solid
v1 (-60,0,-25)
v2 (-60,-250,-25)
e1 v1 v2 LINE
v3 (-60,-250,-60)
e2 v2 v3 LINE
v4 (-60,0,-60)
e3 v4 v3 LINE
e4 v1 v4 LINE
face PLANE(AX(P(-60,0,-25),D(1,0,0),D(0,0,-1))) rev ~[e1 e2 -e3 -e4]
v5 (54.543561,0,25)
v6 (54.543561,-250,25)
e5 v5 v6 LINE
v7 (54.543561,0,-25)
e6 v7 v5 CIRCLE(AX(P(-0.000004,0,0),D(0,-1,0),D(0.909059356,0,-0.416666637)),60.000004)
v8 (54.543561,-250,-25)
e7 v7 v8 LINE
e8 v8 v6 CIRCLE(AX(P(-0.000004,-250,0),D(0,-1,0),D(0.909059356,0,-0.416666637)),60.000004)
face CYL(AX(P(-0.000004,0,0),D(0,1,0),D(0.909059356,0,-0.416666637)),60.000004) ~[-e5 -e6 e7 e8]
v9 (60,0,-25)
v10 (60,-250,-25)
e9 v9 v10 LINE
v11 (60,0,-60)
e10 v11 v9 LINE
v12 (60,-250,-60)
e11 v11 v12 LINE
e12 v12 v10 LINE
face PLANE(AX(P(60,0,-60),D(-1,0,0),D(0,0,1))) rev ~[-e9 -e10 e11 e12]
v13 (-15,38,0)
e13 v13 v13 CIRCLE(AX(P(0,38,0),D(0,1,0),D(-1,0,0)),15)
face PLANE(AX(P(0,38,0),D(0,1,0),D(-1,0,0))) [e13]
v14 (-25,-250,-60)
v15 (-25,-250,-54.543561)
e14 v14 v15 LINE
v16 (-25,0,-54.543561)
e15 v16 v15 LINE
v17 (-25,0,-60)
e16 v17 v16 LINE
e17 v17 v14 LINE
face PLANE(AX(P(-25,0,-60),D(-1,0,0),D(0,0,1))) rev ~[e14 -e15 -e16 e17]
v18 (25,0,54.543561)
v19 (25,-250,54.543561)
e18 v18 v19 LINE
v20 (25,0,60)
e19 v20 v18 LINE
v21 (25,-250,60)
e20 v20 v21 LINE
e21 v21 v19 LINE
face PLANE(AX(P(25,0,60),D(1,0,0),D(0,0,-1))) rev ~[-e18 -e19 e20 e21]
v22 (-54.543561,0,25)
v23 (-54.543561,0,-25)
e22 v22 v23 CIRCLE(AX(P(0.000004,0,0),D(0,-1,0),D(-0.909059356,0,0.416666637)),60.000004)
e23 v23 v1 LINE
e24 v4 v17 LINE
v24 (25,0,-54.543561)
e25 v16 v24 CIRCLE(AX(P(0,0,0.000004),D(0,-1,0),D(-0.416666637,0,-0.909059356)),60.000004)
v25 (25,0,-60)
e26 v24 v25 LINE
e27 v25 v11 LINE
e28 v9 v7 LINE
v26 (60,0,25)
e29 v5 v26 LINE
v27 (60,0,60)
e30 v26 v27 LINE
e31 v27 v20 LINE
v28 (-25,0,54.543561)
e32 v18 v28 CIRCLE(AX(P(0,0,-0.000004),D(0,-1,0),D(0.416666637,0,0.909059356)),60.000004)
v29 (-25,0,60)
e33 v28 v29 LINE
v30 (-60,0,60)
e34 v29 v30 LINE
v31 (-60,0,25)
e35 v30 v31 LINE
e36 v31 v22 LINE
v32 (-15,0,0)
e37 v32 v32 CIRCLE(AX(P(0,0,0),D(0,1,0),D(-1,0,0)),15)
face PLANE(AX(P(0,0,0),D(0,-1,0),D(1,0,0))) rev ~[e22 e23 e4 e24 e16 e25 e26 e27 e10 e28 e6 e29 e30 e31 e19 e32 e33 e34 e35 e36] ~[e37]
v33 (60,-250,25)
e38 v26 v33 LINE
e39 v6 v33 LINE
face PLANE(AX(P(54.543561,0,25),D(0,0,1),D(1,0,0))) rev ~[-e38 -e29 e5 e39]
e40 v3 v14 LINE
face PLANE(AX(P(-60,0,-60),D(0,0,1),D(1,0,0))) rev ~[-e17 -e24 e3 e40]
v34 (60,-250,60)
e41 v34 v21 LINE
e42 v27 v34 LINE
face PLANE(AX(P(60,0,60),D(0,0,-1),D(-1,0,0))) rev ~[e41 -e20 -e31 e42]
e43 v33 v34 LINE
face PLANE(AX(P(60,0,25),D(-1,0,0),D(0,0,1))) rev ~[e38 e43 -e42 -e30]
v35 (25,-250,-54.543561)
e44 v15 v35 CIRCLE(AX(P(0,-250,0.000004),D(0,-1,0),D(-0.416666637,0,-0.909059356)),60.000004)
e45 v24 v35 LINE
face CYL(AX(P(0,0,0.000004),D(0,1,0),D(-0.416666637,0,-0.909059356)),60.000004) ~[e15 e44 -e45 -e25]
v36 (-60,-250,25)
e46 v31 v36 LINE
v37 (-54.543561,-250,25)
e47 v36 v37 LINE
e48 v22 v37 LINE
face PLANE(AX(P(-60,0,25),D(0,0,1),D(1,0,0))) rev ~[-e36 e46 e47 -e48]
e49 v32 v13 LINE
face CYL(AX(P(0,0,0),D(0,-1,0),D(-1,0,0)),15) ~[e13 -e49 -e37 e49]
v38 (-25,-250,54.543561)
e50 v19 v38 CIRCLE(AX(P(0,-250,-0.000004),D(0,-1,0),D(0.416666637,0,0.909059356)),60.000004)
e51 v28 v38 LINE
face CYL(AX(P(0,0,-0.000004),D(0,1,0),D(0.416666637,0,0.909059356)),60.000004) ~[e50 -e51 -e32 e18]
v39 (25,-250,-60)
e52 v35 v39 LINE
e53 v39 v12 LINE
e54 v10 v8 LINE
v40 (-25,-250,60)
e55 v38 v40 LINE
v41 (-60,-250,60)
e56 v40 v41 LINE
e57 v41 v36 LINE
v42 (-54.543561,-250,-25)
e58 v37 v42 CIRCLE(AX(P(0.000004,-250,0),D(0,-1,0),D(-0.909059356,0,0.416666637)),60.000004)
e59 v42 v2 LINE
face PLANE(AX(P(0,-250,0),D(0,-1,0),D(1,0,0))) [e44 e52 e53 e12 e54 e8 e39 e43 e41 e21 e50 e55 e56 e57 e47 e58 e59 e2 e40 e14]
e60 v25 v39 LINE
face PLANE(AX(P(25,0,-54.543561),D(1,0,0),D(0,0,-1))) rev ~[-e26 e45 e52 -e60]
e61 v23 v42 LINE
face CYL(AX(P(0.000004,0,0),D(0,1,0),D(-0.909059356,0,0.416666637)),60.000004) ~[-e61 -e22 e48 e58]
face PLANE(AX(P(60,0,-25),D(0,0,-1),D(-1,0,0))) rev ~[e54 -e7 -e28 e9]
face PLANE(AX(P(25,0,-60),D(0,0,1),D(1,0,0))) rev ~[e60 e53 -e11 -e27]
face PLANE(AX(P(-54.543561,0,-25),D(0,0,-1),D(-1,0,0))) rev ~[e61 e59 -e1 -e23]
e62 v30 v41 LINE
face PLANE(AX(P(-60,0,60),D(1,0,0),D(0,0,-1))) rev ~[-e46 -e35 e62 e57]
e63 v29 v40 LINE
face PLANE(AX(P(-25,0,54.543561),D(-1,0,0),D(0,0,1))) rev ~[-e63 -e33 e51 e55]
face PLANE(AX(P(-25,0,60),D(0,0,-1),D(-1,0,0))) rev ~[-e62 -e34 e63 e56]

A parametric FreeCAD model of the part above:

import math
import FreeCAD as App
import Part
import Sketcher

V = App.Vector

doc = App.newDocument("Part")
body = doc.addObject("PartDesign::Body", "Body")

# Sketch on XZ plane
sketch1 = body.newObject("Sketcher::SketchObject", "Sketch")
sketch1.AttachmentSupport = (doc.getObject("XZ_Plane"), [""])
sketch1.MapMode = "FlatFace"
sketch1.addGeometry([
    Part.LineSegment(V(-60, 25, 0), V(-55, 25, 0)),  # 0
    Part.ArcOfCircle(Part.Circle(V(0, 0, 0), V(0, 0, 1), 60), math.radians(155), math.radians(205)),  # 1
    Part.LineSegment(V(-55, -25, 0), V(-60, -25, 0)),  # 2
    Part.LineSegment(V(-60, -25, 0), V(-60, -60, 0)),  # 3
    Part.LineSegment(V(-60, -60, 0), V(-25, -60, 0)),  # 4
    Part.LineSegment(V(-25, -60, 0), V(-25, -55, 0)),  # 5
    Part.ArcOfCircle(Part.Circle(V(0, 0, 0), V(0, 0, 1), 60), math.radians(-115), math.radians(-65)),  # 6
    Part.LineSegment(V(25, -55, 0), V(25, -60, 0)),  # 7
    Part.LineSegment(V(25, -60, 0), V(60, -60, 0)),  # 8
    Part.LineSegment(V(60, -60, 0), V(60, -25, 0)),  # 9
    Part.LineSegment(V(60, -25, 0), V(55, -25, 0)),  # 10
    Part.ArcOfCircle(Part.Circle(V(0, 0, 0), V(0, 0, 1), 60), math.radians(-25), math.radians(25)),  # 11
    Part.LineSegment(V(55, 25, 0), V(60, 25, 0)),  # 12
    Part.LineSegment(V(60, 25, 0), V(60, 60, 0)),  # 13
    Part.LineSegment(V(60, 60, 0), V(25, 60, 0)),  # 14
    Part.LineSegment(V(25, 60, 0), V(25, 55, 0)),  # 15
    Part.ArcOfCircle(Part.Circle(V(0, 0, 0), V(0, 0, 1), 60), math.radians(65), math.radians(115)),  # 16
    Part.LineSegment(V(-25, 55, 0), V(-25, 60, 0)),  # 17
    Part.LineSegment(V(-25, 60, 0), V(-60, 60, 0)),  # 18
    Part.LineSegment(V(-60, 60, 0), V(-60, 25, 0)),  # 19
], False)
sketch1.addConstraint([
    Sketcher.Constraint("Coincident", 0, 2, 1, 1),
    Sketcher.Constraint("Coincident", 1, 2, 2, 1),
    Sketcher.Constraint("Coincident", 2, 2, 3, 1),
    Sketcher.Constraint("Coincident", 3, 2, 4, 1),
    Sketcher.Constraint("Coincident", 4, 2, 5, 1),
    Sketcher.Constraint("Coincident", 5, 2, 6, 1),
    Sketcher.Constraint("Coincident", 6, 2, 7, 1),
    Sketcher.Constraint("Coincident", 7, 2, 8, 1),
    Sketcher.Constraint("Coincident", 8, 2, 9, 1),
    Sketcher.Constraint("Coincident", 9, 2, 10, 1),
    Sketcher.Constraint("Coincident", 10, 2, 11, 1),
    Sketcher.Constraint("Coincident", 11, 2, 12, 1),
    Sketcher.Constraint("Coincident", 12, 2, 13, 1),
    Sketcher.Constraint("Coincident", 13, 2, 14, 1),
    Sketcher.Constraint("Coincident", 14, 2, 15, 1),
    Sketcher.Constraint("Coincident", 15, 2, 16, 1),
    Sketcher.Constraint("Coincident", 16, 2, 17, 1),
    Sketcher.Constraint("Coincident", 17, 2, 18, 1),
    Sketcher.Constraint("Coincident", 18, 2, 19, 1),
    Sketcher.Constraint("Coincident", 19, 2, 0, 1),
    Sketcher.Constraint("Horizontal", 0),
    Sketcher.Constraint("Horizontal", 2),
    Sketcher.Constraint("Vertical", 3),
    Sketcher.Constraint("Horizontal", 4),
    Sketcher.Constraint("Vertical", 5),
    Sketcher.Constraint("Vertical", 7),
    Sketcher.Constraint("Horizontal", 8),
    Sketcher.Constraint("Vertical", 9),
    Sketcher.Constraint("Horizontal", 10),
    Sketcher.Constraint("Horizontal", 12),
    Sketcher.Constraint("Vertical", 13),
    Sketcher.Constraint("Horizontal", 14),
    Sketcher.Constraint("Vertical", 15),
    Sketcher.Constraint("Vertical", 17),
    Sketcher.Constraint("Horizontal", 18),
    Sketcher.Constraint("Vertical", 19),
    Sketcher.Constraint("Coincident", 1, 3, -1, 1),
    Sketcher.Constraint("Coincident", 6, 3, -1, 1),
    Sketcher.Constraint("Coincident", 11, 3, -1, 1),
    Sketcher.Constraint("Coincident", 16, 3, -1, 1),
    Sketcher.Constraint("Equal", 1, 6),
    Sketcher.Constraint("Equal", 6, 11),
    Sketcher.Constraint("Equal", 11, 16),
    Sketcher.Constraint("Symmetric", 2, 2, 12, 2, -1, 1),
    Sketcher.Constraint("Symmetric", 4, 2, 14, 2, -1, 1),
    Sketcher.Constraint("Symmetric", 7, 2, 17, 2, -1, 1),
    Sketcher.Constraint("Symmetric", 9, 2, 19, 2, -1, 1),
    Sketcher.Constraint("Symmetric", 4, 2, 7, 2, -2),
    Sketcher.Constraint("Symmetric", 2, 2, 9, 2, -2),
    Sketcher.Constraint("Equal", 18, 3),
    Sketcher.Constraint("Equal", 12, 5),
    Sketcher.Constraint("DistanceX", 4, 1, 4, 2, 35.0),
    Sketcher.Constraint("DistanceY", -1, 1, 0, 2, 25.0),
    Sketcher.Constraint("Radius", 1, 60.000004),
])
pad1 = body.newObject("PartDesign::Pad", "Pad")
pad1.Profile = sketch1
pad1.Length = 250

# Sketch on XZ plane
sketch2 = body.newObject("Sketcher::SketchObject", "Sketch001")
sketch2.AttachmentSupport = (doc.getObject("XZ_Plane"), [""])
sketch2.MapMode = "FlatFace"
sketch2.addGeometry(Part.Circle(V(0, 0, 0), V(0, 0, 1), 15), False)
sketch2.addConstraint([
    Sketcher.Constraint("Coincident", 0, 3, -1, 1),
    Sketcher.Constraint("Diameter", 0, 30.0),
])
pad2 = body.newObject("PartDesign::Pad", "Pad001")
pad2.Profile = sketch2
pad2.Length = 38
pad2.Reversed = True

doc.recompute()
